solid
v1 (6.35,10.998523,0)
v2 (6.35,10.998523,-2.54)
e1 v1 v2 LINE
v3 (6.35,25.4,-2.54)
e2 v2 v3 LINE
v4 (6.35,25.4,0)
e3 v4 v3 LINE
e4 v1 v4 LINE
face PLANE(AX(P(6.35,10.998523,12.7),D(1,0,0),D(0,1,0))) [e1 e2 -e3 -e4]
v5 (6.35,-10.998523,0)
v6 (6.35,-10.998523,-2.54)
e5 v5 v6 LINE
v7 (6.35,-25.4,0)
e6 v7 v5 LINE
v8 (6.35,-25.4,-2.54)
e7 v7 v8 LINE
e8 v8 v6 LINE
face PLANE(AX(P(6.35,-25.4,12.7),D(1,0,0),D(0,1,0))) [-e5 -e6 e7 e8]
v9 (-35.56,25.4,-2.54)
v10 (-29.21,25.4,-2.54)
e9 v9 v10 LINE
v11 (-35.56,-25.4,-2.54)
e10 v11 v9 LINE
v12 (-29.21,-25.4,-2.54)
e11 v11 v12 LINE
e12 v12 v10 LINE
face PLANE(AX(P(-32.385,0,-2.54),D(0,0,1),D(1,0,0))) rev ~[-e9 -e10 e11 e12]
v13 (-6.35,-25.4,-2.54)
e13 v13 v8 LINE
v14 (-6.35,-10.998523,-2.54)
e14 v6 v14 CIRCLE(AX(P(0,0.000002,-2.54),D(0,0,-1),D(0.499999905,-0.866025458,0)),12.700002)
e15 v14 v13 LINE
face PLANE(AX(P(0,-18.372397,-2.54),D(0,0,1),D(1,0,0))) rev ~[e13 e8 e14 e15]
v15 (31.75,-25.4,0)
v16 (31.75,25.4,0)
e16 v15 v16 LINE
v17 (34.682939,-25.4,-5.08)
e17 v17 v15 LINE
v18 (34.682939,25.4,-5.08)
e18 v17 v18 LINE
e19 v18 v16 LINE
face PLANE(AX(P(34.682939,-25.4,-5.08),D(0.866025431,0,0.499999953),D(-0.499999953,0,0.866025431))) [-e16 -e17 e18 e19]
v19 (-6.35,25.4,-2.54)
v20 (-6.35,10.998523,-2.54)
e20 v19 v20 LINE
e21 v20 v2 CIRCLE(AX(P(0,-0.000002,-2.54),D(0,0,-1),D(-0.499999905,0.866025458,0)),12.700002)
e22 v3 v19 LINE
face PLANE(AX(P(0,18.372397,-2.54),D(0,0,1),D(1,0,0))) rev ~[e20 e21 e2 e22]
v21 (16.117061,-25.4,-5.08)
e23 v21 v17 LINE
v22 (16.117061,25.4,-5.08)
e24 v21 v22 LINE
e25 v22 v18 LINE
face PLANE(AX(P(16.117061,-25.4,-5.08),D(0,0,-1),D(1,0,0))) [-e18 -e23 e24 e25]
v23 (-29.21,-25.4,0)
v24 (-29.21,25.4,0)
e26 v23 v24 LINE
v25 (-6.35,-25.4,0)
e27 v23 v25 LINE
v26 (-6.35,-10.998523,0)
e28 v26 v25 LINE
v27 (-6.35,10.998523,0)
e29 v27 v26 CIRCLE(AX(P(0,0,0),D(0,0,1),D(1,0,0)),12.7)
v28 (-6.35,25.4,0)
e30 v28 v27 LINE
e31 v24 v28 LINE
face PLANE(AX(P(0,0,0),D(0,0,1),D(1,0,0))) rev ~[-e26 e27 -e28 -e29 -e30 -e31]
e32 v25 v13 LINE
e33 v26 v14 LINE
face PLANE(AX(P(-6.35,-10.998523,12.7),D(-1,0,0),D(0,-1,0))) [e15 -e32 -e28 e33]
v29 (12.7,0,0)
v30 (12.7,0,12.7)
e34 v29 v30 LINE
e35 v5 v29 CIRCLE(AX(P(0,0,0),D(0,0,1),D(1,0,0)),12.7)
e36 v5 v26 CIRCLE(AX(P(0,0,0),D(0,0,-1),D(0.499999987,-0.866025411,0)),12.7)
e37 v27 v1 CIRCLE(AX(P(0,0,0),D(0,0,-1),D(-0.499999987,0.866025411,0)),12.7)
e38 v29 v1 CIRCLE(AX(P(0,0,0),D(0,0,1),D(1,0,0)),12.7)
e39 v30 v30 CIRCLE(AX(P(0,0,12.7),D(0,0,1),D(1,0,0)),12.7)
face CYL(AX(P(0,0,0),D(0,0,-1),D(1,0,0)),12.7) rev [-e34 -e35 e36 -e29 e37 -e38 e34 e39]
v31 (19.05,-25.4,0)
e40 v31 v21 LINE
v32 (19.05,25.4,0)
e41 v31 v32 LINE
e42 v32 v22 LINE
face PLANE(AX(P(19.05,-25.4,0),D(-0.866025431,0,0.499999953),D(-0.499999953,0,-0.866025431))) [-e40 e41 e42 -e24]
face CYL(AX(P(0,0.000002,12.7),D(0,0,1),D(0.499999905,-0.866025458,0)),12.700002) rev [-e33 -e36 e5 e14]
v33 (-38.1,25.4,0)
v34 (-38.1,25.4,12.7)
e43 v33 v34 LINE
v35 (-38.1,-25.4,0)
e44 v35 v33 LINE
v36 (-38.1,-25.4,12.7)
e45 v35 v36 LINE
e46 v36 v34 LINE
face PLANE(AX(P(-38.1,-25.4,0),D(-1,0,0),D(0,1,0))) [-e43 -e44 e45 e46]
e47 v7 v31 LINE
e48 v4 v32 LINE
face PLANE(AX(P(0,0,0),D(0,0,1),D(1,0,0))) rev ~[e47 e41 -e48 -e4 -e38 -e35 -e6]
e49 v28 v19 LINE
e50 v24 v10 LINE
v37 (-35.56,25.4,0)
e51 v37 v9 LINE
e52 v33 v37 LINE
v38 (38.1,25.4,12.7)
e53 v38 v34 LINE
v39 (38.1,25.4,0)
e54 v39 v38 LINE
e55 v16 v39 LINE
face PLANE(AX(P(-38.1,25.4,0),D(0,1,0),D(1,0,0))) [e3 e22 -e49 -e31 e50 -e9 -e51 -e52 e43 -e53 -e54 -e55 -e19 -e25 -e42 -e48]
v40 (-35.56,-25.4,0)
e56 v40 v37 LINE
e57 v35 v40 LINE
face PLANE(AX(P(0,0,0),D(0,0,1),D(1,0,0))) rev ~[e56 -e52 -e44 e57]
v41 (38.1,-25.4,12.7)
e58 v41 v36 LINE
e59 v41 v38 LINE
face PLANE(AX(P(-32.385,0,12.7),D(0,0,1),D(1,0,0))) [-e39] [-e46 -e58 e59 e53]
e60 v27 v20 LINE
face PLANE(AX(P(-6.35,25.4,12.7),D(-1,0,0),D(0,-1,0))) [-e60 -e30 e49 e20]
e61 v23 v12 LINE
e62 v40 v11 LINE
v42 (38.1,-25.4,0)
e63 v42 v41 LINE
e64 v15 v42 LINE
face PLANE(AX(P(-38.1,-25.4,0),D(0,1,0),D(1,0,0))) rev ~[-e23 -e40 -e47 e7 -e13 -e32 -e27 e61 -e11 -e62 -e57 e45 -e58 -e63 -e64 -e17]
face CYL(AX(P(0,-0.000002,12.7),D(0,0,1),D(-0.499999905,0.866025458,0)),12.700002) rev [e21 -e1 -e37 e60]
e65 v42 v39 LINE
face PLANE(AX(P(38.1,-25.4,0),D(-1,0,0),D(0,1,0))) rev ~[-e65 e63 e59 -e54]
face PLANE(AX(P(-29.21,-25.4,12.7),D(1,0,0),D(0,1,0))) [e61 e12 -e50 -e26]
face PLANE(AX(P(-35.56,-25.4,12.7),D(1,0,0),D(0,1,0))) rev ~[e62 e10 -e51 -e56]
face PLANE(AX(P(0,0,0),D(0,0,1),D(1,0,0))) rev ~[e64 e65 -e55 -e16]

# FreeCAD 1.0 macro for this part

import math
import FreeCAD as App
import Part
import Sketcher

V = App.Vector
Q = App.Units.Quantity


def add_polygon(sketch, points):
    """Adds a closed chain of lines whose ends are joined by coincident constraints."""
    first, n = sketch.GeometryCount, len(points)
    for a, b in zip(points, points[1:] + points[:1]):
        sketch.addGeometry(Part.LineSegment(App.Vector(*a, 0), App.Vector(*b, 0)), False)
    for i in range(n):
        sketch.addConstraint(Sketcher.Constraint("Coincident", first + i, 2, first + (i + 1) % n, 1))

doc = App.newDocument("Part")
params = doc.addObject("Spreadsheet::Sheet", "Params")
for row, (alias, value) in enumerate([
    ("sketch1_diameter", "1 in"),
    ("sketch1_width", "3 in"),
    ("sketch1_height", "2 in"),
    ("pad1_length", "0.5 in"),
    ("sketch2_radius", "0.5000001 in"),
    ("sketch2_height", "2 in"),
    ("sketch2_width", "0.5 in"),
    ("sketch2_width2", "0.25 in"),
    ("pad2_length", "0.6 in"),
    ("sketch3_width", "0.5 in"),
    ("pad3_length", "2 in"),
], start=1):
    params.set(f"A{row}", alias)
    params.set(f"B{row}", "=" + value)
    params.setAlias(f"B{row}", alias)

body = doc.addObject("PartDesign::Body", "Body")

# Sketch on XY plane
sketch1 = body.newObject("Sketcher::SketchObject", "Sketch")
sketch1.AttachmentSupport = (doc.getObject("XY_Plane"), [""])
sketch1.MapMode = "FlatFace"
add_polygon(sketch1, [(-38, 25), (-38, -25), (38, -25), (38, 25)])  # lines 0-3
sketch1.addGeometry(Part.Circle(V(0, 0, 0), V(0, 0, 1), 13), False)  # 4
sketch1.addConstraint([
    Sketcher.Constraint("Vertical", 0),
    Sketcher.Constraint("Horizontal", 1),
    Sketcher.Constraint("Vertical", 2),
    Sketcher.Constraint("Horizontal", 3),
    Sketcher.Constraint("Coincident", 4, 3, -1, 1),
    Sketcher.Constraint("Symmetric", 0, 2, 2, 2, -1, 1),
    Sketcher.Constraint("Diameter", 4, Q("1 in")),
    Sketcher.Constraint("DistanceX", 1, 1, 1, 2, Q("3 in")),
    Sketcher.Constraint("DistanceY", 0, 2, 0, 1, Q("2 in")),
])
sketch1.setExpression("Constraints[10]", "Params.sketch1_diameter")
sketch1.setExpression("Constraints[11]", "Params.sketch1_width")
sketch1.setExpression("Constraints[12]", "Params.sketch1_height")
pad1 = body.newObject("PartDesign::Pad", "Pad")
pad1.Profile = sketch1
pad1.setExpression("Length", "Params.pad1_length")

# Sketch on XY plane
sketch2 = body.newObject("Sketcher::SketchObject", "Sketch001")
sketch2.AttachmentSupport = (doc.getObject("XY_Plane"), [""])
sketch2.MapMode = "FlatFace"
sketch2.AttachmentOffset = App.Placement(V(0, 0, 0.5 * 25.4), App.Rotation())
add_polygon(sketch2, [(-36, 25), (-36, -25), (-29, -25), (-29, 25)])  # lines 0-3
sketch2.addGeometry(Part.LineSegment(V(-6, -11, 0), V(-6, -25, 0)), False)  # 4
sketch2.addGeometry(Part.LineSegment(V(-6, -25, 0), V(6, -25, 0)), False)  # 5
sketch2.addGeometry(Part.LineSegment(V(6, -25, 0), V(6, -11, 0)), False)  # 6
sketch2.addGeometry(Part.ArcOfCircle(Part.Circle(V(0, 0, 0), V(0, 0, 1), 13), math.radians(-120), math.radians(-60)), False)  # 7
sketch2.addGeometry(Part.LineSegment(V(6, 25, 0), V(-6, 25, 0)), False)  # 8
sketch2.addGeometry(Part.LineSegment(V(-6, 25, 0), V(-6, 11, 0)), False)  # 9
sketch2.addGeometry(Part.ArcOfCircle(Part.Circle(V(0, 0, 0), V(0, 0, 1), 13), math.radians(60), math.radians(120)), False)  # 10
sketch2.addGeometry(Part.LineSegment(V(6, 11, 0), V(6, 25, 0)), False)  # 11
sketch2.addConstraint([
    Sketcher.Constraint("Coincident", 4, 2, 5, 1),
    Sketcher.Constraint("Coincident", 5, 2, 6, 1),
    Sketcher.Constraint("Coincident", 6, 2, 7, 2),
    Sketcher.Constraint("Coincident", 7, 1, 4, 1),
    Sketcher.Constraint("Coincident", 8, 2, 9, 1),
    Sketcher.Constraint("Coincident", 9, 2, 10, 2),
    Sketcher.Constraint("Coincident", 10, 1, 11, 1),
    Sketcher.Constraint("Coincident", 11, 2, 8, 1),
    Sketcher.Constraint("Vertical", 0),
    Sketcher.Constraint("Horizontal", 1),
    Sketcher.Constraint("Vertical", 2),
    Sketcher.Constraint("Horizontal", 3),
    Sketcher.Constraint("Vertical", 4),
    Sketcher.Constraint("Horizontal", 5),
    Sketcher.Constraint("Vertical", 6),
    Sketcher.Constraint("Horizontal", 8),
    Sketcher.Constraint("Vertical", 9),
    Sketcher.Constraint("Vertical", 11),
    Sketcher.Constraint("Coincident", 7, 3, -1, 1),
    Sketcher.Constraint("Coincident", 10, 3, -1, 1),
    Sketcher.Constraint("Equal", 7, 10),
    Sketcher.Constraint("Symmetric", 5, 2, 8, 2, -1, 1),
    Sketcher.Constraint("Horizontal", 1, 2, 4, 2),
    Sketcher.Constraint("Horizontal", 6, 2, 7, 1),
    Sketcher.Constraint("Horizontal", 3, 2, 8, 2),
    Sketcher.Constraint("Horizontal", 9, 2, 10, 1),
    Sketcher.Constraint("Radius", 7, Q("0.5000001 in")),
    Sketcher.Constraint("DistanceY", 0, 2, 0, 1, Q("2 in")),
    Sketcher.Constraint("DistanceX", 5, 1, 5, 2, Q("0.5 in")),
    Sketcher.Constraint("DistanceX", 1, 1, 1, 2, Q("0.25 in")),
    Sketcher.Constraint("DistanceX", 0, 2, -1, 1, Q("1.4 in")),
])
sketch2.setExpression("Constraints[30]", "Params.sketch2_radius")
sketch2.setExpression("Constraints[31]", "Params.sketch2_height")
sketch2.setExpression("Constraints[32]", "Params.sketch2_width")
sketch2.setExpression("Constraints[33]", "Params.sketch2_width2")
pad2 = body.newObject("PartDesign::Pad", "Pad001")
pad2.Profile = sketch2
pad2.setExpression("Length", "Params.pad2_length")
pad2.Reversed = True

# Sketch on XZ plane
sketch3 = body.newObject("Sketcher::SketchObject", "Sketch002")
sketch3.AttachmentSupport = (doc.getObject("XZ_Plane"), [""])
sketch3.MapMode = "FlatFace"
sketch3.AttachmentOffset = App.Placement(V(0, 0, 1 * 25.4), App.Rotation())
add_polygon(sketch3, [(32, 0), (19, 0), (16, -5), (35, -5)])  # lines 0-3
sketch3.addConstraint([
    Sketcher.Constraint("Horizontal", 0),
    Sketcher.Constraint("Horizontal", 2),
    Sketcher.Constraint("PointOnObject", 0, 2, -1),
    Sketcher.Constraint("Equal", 1, 3),
    Sketcher.Constraint("DistanceX", 0, 2, 0, 1, Q("0.5 in")),
    Sketcher.Constraint("Angle", 1, Q("-119.999997 deg")),
    Sketcher.Constraint("DistanceY", 1, 2, -1, 1, Q("0.2 in")),
    Sketcher.Constraint("DistanceX", -1, 1, 0, 2, Q("0.75 in")),
])
sketch3.setExpression("Constraints[8]", "Params.sketch3_width")
pad3 = body.newObject("PartDesign::Pad", "Pad002")
pad3.Profile = sketch3
pad3.setExpression("Length", "Params.pad3_length")
pad3.Reversed = True

doc.recompute()
